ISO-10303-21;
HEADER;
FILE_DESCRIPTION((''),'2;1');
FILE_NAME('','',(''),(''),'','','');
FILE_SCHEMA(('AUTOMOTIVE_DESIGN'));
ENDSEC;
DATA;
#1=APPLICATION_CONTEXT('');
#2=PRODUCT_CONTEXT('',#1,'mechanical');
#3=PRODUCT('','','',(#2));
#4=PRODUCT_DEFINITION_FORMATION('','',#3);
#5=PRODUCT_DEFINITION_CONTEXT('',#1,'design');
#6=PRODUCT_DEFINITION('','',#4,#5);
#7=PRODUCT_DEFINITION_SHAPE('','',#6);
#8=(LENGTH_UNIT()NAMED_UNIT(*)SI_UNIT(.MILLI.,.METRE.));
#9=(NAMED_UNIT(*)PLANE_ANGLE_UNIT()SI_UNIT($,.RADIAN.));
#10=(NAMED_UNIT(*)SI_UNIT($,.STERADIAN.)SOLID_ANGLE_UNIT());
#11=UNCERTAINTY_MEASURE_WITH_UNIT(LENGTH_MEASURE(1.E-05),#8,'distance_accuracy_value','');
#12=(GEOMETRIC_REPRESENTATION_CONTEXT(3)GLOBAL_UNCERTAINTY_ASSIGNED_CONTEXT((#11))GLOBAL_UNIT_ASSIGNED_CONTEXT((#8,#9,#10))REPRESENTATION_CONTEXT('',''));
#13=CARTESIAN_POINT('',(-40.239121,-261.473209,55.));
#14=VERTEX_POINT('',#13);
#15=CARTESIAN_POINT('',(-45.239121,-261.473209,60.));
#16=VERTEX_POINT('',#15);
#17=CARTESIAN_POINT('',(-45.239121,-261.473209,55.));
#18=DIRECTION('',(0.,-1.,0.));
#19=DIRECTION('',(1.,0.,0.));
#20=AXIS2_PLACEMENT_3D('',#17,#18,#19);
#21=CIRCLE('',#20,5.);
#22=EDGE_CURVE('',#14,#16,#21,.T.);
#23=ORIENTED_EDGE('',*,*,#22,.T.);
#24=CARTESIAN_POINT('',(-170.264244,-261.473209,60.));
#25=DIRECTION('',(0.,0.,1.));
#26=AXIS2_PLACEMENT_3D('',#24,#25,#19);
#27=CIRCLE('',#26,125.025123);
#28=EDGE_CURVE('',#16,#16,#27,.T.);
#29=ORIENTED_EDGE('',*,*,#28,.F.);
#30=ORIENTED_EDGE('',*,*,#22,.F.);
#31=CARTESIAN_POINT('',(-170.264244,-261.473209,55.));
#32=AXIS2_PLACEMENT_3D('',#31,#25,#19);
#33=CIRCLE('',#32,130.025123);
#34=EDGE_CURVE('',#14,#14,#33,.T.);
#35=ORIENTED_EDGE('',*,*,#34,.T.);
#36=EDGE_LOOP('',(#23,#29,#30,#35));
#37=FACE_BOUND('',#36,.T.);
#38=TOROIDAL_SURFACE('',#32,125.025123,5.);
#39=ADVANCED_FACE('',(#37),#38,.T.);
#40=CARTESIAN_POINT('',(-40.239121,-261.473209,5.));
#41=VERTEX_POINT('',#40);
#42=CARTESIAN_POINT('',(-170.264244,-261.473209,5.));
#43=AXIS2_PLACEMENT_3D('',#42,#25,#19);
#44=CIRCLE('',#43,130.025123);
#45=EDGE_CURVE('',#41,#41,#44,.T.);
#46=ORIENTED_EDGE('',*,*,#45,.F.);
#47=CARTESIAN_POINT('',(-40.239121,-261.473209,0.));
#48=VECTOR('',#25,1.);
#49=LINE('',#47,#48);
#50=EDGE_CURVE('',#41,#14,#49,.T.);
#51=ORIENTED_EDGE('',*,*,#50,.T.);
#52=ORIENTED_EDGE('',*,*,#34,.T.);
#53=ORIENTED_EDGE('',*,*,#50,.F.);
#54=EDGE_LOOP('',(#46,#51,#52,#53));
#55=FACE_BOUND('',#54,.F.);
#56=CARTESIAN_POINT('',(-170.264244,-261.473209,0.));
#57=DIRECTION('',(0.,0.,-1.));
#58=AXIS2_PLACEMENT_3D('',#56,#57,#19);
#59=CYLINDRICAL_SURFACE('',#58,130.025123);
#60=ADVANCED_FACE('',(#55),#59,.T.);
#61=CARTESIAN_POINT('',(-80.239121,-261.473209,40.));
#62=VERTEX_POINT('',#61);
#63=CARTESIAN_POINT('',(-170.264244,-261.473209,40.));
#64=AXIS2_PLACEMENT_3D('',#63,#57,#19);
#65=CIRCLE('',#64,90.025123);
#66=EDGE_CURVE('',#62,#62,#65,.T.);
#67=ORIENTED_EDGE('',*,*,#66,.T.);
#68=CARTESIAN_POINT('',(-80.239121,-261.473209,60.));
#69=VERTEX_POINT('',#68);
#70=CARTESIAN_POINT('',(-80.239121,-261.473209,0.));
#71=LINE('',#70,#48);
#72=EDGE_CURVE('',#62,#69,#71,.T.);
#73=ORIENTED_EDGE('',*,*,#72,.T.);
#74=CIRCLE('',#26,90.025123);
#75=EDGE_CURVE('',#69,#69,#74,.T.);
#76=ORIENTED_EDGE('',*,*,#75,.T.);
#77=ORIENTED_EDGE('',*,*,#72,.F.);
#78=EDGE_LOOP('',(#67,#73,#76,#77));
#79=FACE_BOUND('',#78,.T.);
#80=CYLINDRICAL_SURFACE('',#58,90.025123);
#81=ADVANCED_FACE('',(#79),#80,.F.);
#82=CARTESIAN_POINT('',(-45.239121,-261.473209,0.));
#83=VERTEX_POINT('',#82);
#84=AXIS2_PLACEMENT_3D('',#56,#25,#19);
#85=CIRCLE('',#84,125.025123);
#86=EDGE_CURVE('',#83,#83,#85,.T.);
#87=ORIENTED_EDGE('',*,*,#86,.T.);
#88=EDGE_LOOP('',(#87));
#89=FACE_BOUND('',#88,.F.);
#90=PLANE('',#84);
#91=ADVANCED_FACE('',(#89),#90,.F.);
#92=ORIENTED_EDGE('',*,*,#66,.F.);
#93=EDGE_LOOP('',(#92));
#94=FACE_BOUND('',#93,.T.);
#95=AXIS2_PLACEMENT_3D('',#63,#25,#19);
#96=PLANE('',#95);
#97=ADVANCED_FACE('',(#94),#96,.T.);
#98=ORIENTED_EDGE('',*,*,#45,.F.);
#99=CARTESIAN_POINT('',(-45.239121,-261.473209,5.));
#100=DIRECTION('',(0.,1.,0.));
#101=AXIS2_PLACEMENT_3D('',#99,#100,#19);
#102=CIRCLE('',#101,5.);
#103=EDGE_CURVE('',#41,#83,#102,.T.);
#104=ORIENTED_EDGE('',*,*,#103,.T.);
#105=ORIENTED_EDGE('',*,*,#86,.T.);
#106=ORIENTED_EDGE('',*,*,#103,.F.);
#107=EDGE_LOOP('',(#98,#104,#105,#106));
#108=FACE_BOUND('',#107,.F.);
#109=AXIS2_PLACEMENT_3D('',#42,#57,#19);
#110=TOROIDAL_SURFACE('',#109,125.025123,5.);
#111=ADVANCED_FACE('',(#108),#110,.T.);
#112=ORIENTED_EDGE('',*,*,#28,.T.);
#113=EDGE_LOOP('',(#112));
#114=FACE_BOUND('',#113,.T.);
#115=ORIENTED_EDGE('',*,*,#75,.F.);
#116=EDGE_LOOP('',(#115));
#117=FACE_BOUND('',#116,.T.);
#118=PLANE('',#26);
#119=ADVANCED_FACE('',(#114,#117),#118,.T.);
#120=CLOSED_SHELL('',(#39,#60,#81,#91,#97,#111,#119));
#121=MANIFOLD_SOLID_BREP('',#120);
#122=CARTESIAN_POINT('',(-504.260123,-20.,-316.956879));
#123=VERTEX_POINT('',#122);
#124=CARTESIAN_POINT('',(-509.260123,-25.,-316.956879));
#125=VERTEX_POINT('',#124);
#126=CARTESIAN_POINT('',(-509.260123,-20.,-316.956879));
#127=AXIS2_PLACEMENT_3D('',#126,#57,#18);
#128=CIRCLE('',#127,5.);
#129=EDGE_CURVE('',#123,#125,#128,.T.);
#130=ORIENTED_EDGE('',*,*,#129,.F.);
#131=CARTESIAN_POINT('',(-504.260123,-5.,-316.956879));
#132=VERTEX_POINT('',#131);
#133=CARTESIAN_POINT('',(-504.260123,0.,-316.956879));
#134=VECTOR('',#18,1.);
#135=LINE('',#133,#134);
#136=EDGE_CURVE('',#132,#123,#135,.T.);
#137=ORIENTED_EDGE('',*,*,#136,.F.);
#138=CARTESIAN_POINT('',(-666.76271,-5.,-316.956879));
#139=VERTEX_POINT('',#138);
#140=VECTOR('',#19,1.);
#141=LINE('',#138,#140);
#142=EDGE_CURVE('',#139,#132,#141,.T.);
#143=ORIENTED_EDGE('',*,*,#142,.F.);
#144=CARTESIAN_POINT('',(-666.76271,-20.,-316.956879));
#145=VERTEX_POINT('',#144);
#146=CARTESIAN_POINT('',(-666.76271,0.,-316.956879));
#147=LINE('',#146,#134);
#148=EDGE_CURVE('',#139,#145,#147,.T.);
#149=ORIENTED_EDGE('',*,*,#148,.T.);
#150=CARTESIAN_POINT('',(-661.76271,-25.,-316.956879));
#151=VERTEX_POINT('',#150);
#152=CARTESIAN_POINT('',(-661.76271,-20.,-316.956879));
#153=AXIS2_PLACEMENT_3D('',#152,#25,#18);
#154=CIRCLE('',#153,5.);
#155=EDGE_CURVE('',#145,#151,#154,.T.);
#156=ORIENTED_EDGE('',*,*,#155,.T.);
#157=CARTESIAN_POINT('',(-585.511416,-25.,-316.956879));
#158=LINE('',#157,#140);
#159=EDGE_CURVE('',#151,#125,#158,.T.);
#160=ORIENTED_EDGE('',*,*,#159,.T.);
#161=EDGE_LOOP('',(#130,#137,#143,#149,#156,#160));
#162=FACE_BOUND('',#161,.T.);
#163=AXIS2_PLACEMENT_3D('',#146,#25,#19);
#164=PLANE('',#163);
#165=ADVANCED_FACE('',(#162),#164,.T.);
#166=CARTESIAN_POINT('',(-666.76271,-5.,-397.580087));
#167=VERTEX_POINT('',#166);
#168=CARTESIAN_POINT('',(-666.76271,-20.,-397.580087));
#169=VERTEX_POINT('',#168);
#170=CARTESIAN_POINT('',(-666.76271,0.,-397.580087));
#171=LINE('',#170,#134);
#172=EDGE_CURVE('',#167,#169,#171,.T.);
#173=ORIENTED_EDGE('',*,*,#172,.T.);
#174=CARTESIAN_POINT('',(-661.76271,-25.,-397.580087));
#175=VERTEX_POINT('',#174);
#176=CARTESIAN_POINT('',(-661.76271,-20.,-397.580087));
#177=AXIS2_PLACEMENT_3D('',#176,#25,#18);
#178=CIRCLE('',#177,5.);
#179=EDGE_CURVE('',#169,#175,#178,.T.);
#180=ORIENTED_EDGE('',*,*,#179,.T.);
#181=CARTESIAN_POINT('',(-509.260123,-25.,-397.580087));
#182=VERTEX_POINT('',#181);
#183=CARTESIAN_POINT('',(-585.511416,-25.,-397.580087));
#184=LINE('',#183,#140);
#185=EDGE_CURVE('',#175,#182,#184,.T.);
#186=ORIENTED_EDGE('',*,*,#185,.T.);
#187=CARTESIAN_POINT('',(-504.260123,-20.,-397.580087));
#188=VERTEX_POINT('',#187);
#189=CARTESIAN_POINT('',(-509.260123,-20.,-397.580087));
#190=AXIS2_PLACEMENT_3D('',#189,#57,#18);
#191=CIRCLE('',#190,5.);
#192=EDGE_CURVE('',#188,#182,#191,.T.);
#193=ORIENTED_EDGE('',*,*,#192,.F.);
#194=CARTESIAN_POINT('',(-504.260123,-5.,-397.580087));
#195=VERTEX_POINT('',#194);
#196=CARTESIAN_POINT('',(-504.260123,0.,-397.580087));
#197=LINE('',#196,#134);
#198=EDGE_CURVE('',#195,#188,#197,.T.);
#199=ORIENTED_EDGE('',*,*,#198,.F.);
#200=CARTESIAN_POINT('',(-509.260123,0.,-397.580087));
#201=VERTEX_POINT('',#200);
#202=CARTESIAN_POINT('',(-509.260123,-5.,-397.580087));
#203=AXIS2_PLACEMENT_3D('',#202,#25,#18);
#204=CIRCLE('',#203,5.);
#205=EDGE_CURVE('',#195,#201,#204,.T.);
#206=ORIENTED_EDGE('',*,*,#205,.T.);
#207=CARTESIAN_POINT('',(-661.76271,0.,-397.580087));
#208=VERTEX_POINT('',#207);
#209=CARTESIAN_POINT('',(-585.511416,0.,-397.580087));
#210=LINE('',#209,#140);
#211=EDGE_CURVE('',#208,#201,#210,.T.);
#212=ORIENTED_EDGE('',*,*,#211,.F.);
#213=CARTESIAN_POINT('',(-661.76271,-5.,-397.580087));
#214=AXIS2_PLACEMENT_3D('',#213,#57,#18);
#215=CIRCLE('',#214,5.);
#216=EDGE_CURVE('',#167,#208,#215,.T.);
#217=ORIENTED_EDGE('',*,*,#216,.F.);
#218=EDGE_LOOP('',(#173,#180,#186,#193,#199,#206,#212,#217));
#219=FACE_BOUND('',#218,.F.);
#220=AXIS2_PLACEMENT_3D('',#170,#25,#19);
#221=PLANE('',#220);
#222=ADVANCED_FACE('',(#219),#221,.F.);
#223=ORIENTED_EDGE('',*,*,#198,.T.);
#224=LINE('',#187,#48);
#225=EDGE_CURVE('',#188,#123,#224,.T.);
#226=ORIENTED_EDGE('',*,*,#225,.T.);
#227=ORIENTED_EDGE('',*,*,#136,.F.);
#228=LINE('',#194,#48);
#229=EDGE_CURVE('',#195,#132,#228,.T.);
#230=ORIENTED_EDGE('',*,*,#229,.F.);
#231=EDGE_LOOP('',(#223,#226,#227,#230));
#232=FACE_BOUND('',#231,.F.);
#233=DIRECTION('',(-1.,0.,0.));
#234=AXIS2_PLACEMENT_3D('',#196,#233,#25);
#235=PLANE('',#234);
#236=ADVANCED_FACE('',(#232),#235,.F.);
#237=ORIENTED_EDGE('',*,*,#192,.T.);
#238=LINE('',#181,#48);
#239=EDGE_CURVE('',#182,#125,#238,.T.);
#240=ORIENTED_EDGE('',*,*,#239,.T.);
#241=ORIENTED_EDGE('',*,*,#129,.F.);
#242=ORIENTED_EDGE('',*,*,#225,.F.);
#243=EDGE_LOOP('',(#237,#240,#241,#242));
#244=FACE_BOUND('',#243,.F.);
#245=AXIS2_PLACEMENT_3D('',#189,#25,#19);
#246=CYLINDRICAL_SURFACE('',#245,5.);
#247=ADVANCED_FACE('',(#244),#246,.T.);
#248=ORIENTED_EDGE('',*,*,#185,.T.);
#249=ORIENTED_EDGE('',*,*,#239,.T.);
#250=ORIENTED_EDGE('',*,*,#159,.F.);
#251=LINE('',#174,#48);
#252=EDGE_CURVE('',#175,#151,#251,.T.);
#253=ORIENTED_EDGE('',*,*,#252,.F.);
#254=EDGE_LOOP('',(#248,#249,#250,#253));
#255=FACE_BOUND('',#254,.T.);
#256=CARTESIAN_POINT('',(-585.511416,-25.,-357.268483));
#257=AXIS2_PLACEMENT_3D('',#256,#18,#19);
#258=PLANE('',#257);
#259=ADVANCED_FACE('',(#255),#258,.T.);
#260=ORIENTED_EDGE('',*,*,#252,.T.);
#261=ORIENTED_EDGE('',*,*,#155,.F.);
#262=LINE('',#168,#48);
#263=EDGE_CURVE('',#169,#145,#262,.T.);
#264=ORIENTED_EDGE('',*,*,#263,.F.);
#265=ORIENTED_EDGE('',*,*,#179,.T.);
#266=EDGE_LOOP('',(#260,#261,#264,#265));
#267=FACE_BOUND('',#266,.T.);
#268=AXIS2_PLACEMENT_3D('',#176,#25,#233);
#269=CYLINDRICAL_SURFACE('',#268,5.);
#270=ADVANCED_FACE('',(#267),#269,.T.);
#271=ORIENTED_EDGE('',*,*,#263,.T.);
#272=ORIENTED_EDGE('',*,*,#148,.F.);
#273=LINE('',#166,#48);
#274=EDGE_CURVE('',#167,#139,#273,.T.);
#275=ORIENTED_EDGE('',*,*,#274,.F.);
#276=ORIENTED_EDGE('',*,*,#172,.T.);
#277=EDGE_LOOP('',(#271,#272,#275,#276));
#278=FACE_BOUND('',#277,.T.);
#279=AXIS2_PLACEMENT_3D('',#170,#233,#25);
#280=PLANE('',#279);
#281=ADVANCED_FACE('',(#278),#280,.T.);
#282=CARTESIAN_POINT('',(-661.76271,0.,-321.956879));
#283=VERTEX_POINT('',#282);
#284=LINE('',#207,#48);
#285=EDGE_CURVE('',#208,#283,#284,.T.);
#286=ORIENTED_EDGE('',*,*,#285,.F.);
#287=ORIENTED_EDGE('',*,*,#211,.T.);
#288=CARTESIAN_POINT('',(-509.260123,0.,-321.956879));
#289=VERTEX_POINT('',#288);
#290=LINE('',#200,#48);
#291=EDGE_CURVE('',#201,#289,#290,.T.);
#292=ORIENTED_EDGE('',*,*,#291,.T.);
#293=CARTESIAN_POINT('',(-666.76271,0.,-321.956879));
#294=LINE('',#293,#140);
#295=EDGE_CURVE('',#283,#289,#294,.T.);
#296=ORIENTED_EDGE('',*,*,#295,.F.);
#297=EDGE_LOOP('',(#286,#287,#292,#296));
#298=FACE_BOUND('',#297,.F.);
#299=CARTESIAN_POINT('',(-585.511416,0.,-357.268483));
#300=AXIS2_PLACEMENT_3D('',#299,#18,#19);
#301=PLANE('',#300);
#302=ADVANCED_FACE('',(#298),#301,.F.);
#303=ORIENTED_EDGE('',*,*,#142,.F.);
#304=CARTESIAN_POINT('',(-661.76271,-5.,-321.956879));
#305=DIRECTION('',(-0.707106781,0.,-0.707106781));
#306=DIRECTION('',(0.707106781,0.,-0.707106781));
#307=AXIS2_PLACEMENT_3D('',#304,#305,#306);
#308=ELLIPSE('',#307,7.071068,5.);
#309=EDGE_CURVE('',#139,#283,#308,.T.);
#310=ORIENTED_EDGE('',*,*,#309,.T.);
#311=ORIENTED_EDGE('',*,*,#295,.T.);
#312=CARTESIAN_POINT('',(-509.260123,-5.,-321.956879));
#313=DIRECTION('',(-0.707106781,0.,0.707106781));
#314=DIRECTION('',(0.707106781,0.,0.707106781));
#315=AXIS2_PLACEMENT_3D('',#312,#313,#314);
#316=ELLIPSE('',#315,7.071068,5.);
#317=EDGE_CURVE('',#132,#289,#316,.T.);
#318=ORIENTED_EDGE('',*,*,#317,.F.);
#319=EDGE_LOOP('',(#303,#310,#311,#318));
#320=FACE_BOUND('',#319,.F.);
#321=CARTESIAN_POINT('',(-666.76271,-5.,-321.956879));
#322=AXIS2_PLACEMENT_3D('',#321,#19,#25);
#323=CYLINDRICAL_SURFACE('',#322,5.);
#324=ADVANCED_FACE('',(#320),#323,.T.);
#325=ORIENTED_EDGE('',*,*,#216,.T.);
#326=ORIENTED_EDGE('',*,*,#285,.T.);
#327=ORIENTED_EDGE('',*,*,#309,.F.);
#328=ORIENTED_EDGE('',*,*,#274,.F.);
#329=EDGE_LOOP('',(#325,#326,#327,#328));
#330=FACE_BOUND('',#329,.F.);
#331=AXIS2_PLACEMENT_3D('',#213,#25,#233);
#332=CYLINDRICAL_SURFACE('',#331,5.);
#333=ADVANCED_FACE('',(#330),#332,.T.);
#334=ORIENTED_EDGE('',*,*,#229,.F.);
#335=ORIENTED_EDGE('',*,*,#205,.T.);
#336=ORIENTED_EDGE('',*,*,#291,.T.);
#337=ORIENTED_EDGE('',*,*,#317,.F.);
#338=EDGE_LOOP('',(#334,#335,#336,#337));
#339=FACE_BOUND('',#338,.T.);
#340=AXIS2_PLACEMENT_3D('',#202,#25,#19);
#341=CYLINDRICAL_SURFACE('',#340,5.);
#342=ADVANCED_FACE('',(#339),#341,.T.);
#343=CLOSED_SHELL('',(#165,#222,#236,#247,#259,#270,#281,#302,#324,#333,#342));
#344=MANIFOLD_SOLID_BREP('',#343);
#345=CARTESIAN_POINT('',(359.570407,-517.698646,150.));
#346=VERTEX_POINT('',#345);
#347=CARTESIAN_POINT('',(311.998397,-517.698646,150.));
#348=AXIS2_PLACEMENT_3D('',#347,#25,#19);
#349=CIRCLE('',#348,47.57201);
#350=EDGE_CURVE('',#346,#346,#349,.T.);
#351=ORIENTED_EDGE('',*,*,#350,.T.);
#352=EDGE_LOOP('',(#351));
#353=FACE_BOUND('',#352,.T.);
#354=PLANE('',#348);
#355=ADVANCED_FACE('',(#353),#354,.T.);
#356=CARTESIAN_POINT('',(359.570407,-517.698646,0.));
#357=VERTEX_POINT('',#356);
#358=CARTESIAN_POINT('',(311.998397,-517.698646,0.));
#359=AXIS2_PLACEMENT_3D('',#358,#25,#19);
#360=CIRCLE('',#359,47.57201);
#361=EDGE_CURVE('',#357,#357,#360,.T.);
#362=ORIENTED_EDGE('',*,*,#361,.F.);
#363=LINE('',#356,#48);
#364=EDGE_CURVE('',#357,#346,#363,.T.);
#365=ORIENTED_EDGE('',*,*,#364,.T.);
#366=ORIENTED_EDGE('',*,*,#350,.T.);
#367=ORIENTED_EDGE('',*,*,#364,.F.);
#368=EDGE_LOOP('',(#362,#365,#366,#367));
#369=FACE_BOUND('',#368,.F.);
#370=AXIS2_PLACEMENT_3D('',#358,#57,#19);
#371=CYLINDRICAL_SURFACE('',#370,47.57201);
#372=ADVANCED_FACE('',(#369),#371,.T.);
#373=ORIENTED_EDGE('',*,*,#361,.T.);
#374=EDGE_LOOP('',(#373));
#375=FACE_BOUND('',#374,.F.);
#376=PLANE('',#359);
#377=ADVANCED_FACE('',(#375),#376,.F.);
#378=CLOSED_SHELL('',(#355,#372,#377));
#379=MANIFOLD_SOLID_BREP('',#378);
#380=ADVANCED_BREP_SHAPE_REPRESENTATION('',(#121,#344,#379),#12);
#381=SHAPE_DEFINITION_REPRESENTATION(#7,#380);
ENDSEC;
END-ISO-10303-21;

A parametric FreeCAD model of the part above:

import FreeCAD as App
import Part
import Sketcher

V = App.Vector
Q = App.Units.Quantity


def edges_at(feature, points):
    """Names of the edges that pass closest to the given points."""
    edges = feature.Shape.Edges
    near = lambda p: min(range(len(edges)), key=lambda i: edges[i].distToShape(Part.Vertex(*p))[0])
    return sorted({f"Edge{near(p) + 1}" for p in points})


def faces_at(feature, points):
    """Names of the faces that lie closest to the given points."""
    faces = feature.Shape.Faces
    near = lambda p: min(range(len(faces)), key=lambda i: faces[i].distToShape(Part.Vertex(*p))[0])
    return sorted({f"Face{near(p) + 1}" for p in points})


def add_polygon(sketch, points):
    """Adds a closed chain of lines whose ends are joined by coincident constraints."""
    first, n = sketch.GeometryCount, len(points)
    for a, b in zip(points, points[1:] + points[:1]):
        sketch.addGeometry(Part.LineSegment(App.Vector(*a, 0), App.Vector(*b, 0)), False)
    for i in range(n):
        sketch.addConstraint(Sketcher.Constraint("Coincident", first + i, 2, first + (i + 1) % n, 1))

doc = App.newDocument("Part")
body = doc.addObject("PartDesign::Body", "Body")

# Sketch on XY plane
sketch1 = doc.addObject("Sketcher::SketchObject", "Sketch")
body.addObject(sketch1)
sketch1.AttachmentSupport = (doc.XY_Plane, [""])
sketch1.MapMode = "FlatFace"
sketch1.addGeometry(Part.Circle(V(-170, -261, 0), V(0, 0, 1), 130), False)
sketch1.addConstraint(Sketcher.Constraint("Diameter", 0, Q("260.050246 mm")))
sketch1.addConstraint(Sketcher.Constraint("DistanceY", 0, 3, -1, 1, Q("261.473209 mm")))
sketch1.addConstraint(Sketcher.Constraint("DistanceX", 0, 3, -1, 1, Q("170.264244 mm")))
pad1 = doc.addObject("PartDesign::Pad", "Pad")
body.addObject(pad1)
pad1.Profile = sketch1
pad1.Length = 60
doc.recompute()

thickness = doc.addObject("PartDesign::Thickness", "Thickness")
body.addObject(thickness)
thickness.Base = (pad1, faces_at(pad1, [(-170.264, -261.473, 60)]))
thickness.Value = 40
thickness.Reversed = True
thickness.Join = "Arc"
doc.recompute()

fillet = doc.addObject("PartDesign::Fillet", "Fillet")
body.addObject(fillet)
fillet.Base = (thickness, edges_at(thickness, [(-300.289, -261.473, 60)]))
fillet.Radius = 5
doc.recompute()

fillet2 = doc.addObject("PartDesign::Fillet", "Fillet001")
body.addObject(fillet2)
fillet2.Base = (fillet, edges_at(fillet, [(-300.289, -261.473, 0)]))
fillet2.Radius = 5
body2 = doc.addObject("PartDesign::Body", "Body001")

# Sketch on XY plane
sketch2 = doc.addObject("Sketcher::SketchObject", "Sketch001")
body2.addObject(sketch2)
sketch2.AttachmentSupport = (doc.getObject("XY_Plane001"), [""])
sketch2.MapMode = "FlatFace"
sketch2.addGeometry(Part.Circle(V(312, -518, 0), V(0, 0, 1), 48), False)
sketch2.addConstraint(Sketcher.Constraint("Diameter", 0, Q("95.14402 mm")))
sketch2.addConstraint(Sketcher.Constraint("DistanceX", -1, 1, 0, 3, Q("311.998397 mm")))
sketch2.addConstraint(Sketcher.Constraint("DistanceY", 0, 3, -1, 1, Q("517.698646 mm")))
pad2 = doc.addObject("PartDesign::Pad", "Pad001")
body2.addObject(pad2)
pad2.Profile = sketch2
pad2.Length = 150
body3 = doc.addObject("PartDesign::Body", "Body002")

# Sketch on XZ plane
sketch3 = doc.addObject("Sketcher::SketchObject", "Sketch002")
body3.addObject(sketch3)
sketch3.AttachmentSupport = (doc.getObject("XZ_Plane002"), [""])
sketch3.MapMode = "FlatFace"
add_polygon(sketch3, [(-667, -317), (-667, -398), (-504, -398), (-504, -317)])  # lines 0-3
sketch3.addConstraint(Sketcher.Constraint("Vertical", 0))
sketch3.addConstraint(Sketcher.Constraint("Horizontal", 1))
sketch3.addConstraint(Sketcher.Constraint("Vertical", 2))
sketch3.addConstraint(Sketcher.Constraint("Horizontal", 3))
sketch3.addConstraint(Sketcher.Constraint("DistanceY", 0, 2, 0, 1, Q("80.623209 mm")))
sketch3.addConstraint(Sketcher.Constraint("DistanceX", 1, 1, 1, 2, Q("162.502587 mm")))
sketch3.addConstraint(Sketcher.Constraint("DistanceX", 0, 2, -1, 1, Q("666.76271 mm")))
sketch3.addConstraint(Sketcher.Constraint("DistanceY", 2, 2, -1, 1, Q("316.956879 mm")))
pad3 = doc.addObject("PartDesign::Pad", "Pad002")
body3.addObject(pad3)
pad3.Profile = sketch3
pad3.Length = 25
doc.recompute()

fillet3 = doc.addObject("PartDesign::Fillet", "Fillet002")
body3.addObject(fillet3)
fillet3.Base = (pad3, edges_at(pad3, [
    (-585.511, 0, -316.957),
    (-666.763, -25, -357.268),
    (-504.26, -25, -357.268),
    (-666.763, 0, -357.268),
    (-504.26, 0, -357.268),
]))
fillet3.Radius = 5

doc.recompute()
